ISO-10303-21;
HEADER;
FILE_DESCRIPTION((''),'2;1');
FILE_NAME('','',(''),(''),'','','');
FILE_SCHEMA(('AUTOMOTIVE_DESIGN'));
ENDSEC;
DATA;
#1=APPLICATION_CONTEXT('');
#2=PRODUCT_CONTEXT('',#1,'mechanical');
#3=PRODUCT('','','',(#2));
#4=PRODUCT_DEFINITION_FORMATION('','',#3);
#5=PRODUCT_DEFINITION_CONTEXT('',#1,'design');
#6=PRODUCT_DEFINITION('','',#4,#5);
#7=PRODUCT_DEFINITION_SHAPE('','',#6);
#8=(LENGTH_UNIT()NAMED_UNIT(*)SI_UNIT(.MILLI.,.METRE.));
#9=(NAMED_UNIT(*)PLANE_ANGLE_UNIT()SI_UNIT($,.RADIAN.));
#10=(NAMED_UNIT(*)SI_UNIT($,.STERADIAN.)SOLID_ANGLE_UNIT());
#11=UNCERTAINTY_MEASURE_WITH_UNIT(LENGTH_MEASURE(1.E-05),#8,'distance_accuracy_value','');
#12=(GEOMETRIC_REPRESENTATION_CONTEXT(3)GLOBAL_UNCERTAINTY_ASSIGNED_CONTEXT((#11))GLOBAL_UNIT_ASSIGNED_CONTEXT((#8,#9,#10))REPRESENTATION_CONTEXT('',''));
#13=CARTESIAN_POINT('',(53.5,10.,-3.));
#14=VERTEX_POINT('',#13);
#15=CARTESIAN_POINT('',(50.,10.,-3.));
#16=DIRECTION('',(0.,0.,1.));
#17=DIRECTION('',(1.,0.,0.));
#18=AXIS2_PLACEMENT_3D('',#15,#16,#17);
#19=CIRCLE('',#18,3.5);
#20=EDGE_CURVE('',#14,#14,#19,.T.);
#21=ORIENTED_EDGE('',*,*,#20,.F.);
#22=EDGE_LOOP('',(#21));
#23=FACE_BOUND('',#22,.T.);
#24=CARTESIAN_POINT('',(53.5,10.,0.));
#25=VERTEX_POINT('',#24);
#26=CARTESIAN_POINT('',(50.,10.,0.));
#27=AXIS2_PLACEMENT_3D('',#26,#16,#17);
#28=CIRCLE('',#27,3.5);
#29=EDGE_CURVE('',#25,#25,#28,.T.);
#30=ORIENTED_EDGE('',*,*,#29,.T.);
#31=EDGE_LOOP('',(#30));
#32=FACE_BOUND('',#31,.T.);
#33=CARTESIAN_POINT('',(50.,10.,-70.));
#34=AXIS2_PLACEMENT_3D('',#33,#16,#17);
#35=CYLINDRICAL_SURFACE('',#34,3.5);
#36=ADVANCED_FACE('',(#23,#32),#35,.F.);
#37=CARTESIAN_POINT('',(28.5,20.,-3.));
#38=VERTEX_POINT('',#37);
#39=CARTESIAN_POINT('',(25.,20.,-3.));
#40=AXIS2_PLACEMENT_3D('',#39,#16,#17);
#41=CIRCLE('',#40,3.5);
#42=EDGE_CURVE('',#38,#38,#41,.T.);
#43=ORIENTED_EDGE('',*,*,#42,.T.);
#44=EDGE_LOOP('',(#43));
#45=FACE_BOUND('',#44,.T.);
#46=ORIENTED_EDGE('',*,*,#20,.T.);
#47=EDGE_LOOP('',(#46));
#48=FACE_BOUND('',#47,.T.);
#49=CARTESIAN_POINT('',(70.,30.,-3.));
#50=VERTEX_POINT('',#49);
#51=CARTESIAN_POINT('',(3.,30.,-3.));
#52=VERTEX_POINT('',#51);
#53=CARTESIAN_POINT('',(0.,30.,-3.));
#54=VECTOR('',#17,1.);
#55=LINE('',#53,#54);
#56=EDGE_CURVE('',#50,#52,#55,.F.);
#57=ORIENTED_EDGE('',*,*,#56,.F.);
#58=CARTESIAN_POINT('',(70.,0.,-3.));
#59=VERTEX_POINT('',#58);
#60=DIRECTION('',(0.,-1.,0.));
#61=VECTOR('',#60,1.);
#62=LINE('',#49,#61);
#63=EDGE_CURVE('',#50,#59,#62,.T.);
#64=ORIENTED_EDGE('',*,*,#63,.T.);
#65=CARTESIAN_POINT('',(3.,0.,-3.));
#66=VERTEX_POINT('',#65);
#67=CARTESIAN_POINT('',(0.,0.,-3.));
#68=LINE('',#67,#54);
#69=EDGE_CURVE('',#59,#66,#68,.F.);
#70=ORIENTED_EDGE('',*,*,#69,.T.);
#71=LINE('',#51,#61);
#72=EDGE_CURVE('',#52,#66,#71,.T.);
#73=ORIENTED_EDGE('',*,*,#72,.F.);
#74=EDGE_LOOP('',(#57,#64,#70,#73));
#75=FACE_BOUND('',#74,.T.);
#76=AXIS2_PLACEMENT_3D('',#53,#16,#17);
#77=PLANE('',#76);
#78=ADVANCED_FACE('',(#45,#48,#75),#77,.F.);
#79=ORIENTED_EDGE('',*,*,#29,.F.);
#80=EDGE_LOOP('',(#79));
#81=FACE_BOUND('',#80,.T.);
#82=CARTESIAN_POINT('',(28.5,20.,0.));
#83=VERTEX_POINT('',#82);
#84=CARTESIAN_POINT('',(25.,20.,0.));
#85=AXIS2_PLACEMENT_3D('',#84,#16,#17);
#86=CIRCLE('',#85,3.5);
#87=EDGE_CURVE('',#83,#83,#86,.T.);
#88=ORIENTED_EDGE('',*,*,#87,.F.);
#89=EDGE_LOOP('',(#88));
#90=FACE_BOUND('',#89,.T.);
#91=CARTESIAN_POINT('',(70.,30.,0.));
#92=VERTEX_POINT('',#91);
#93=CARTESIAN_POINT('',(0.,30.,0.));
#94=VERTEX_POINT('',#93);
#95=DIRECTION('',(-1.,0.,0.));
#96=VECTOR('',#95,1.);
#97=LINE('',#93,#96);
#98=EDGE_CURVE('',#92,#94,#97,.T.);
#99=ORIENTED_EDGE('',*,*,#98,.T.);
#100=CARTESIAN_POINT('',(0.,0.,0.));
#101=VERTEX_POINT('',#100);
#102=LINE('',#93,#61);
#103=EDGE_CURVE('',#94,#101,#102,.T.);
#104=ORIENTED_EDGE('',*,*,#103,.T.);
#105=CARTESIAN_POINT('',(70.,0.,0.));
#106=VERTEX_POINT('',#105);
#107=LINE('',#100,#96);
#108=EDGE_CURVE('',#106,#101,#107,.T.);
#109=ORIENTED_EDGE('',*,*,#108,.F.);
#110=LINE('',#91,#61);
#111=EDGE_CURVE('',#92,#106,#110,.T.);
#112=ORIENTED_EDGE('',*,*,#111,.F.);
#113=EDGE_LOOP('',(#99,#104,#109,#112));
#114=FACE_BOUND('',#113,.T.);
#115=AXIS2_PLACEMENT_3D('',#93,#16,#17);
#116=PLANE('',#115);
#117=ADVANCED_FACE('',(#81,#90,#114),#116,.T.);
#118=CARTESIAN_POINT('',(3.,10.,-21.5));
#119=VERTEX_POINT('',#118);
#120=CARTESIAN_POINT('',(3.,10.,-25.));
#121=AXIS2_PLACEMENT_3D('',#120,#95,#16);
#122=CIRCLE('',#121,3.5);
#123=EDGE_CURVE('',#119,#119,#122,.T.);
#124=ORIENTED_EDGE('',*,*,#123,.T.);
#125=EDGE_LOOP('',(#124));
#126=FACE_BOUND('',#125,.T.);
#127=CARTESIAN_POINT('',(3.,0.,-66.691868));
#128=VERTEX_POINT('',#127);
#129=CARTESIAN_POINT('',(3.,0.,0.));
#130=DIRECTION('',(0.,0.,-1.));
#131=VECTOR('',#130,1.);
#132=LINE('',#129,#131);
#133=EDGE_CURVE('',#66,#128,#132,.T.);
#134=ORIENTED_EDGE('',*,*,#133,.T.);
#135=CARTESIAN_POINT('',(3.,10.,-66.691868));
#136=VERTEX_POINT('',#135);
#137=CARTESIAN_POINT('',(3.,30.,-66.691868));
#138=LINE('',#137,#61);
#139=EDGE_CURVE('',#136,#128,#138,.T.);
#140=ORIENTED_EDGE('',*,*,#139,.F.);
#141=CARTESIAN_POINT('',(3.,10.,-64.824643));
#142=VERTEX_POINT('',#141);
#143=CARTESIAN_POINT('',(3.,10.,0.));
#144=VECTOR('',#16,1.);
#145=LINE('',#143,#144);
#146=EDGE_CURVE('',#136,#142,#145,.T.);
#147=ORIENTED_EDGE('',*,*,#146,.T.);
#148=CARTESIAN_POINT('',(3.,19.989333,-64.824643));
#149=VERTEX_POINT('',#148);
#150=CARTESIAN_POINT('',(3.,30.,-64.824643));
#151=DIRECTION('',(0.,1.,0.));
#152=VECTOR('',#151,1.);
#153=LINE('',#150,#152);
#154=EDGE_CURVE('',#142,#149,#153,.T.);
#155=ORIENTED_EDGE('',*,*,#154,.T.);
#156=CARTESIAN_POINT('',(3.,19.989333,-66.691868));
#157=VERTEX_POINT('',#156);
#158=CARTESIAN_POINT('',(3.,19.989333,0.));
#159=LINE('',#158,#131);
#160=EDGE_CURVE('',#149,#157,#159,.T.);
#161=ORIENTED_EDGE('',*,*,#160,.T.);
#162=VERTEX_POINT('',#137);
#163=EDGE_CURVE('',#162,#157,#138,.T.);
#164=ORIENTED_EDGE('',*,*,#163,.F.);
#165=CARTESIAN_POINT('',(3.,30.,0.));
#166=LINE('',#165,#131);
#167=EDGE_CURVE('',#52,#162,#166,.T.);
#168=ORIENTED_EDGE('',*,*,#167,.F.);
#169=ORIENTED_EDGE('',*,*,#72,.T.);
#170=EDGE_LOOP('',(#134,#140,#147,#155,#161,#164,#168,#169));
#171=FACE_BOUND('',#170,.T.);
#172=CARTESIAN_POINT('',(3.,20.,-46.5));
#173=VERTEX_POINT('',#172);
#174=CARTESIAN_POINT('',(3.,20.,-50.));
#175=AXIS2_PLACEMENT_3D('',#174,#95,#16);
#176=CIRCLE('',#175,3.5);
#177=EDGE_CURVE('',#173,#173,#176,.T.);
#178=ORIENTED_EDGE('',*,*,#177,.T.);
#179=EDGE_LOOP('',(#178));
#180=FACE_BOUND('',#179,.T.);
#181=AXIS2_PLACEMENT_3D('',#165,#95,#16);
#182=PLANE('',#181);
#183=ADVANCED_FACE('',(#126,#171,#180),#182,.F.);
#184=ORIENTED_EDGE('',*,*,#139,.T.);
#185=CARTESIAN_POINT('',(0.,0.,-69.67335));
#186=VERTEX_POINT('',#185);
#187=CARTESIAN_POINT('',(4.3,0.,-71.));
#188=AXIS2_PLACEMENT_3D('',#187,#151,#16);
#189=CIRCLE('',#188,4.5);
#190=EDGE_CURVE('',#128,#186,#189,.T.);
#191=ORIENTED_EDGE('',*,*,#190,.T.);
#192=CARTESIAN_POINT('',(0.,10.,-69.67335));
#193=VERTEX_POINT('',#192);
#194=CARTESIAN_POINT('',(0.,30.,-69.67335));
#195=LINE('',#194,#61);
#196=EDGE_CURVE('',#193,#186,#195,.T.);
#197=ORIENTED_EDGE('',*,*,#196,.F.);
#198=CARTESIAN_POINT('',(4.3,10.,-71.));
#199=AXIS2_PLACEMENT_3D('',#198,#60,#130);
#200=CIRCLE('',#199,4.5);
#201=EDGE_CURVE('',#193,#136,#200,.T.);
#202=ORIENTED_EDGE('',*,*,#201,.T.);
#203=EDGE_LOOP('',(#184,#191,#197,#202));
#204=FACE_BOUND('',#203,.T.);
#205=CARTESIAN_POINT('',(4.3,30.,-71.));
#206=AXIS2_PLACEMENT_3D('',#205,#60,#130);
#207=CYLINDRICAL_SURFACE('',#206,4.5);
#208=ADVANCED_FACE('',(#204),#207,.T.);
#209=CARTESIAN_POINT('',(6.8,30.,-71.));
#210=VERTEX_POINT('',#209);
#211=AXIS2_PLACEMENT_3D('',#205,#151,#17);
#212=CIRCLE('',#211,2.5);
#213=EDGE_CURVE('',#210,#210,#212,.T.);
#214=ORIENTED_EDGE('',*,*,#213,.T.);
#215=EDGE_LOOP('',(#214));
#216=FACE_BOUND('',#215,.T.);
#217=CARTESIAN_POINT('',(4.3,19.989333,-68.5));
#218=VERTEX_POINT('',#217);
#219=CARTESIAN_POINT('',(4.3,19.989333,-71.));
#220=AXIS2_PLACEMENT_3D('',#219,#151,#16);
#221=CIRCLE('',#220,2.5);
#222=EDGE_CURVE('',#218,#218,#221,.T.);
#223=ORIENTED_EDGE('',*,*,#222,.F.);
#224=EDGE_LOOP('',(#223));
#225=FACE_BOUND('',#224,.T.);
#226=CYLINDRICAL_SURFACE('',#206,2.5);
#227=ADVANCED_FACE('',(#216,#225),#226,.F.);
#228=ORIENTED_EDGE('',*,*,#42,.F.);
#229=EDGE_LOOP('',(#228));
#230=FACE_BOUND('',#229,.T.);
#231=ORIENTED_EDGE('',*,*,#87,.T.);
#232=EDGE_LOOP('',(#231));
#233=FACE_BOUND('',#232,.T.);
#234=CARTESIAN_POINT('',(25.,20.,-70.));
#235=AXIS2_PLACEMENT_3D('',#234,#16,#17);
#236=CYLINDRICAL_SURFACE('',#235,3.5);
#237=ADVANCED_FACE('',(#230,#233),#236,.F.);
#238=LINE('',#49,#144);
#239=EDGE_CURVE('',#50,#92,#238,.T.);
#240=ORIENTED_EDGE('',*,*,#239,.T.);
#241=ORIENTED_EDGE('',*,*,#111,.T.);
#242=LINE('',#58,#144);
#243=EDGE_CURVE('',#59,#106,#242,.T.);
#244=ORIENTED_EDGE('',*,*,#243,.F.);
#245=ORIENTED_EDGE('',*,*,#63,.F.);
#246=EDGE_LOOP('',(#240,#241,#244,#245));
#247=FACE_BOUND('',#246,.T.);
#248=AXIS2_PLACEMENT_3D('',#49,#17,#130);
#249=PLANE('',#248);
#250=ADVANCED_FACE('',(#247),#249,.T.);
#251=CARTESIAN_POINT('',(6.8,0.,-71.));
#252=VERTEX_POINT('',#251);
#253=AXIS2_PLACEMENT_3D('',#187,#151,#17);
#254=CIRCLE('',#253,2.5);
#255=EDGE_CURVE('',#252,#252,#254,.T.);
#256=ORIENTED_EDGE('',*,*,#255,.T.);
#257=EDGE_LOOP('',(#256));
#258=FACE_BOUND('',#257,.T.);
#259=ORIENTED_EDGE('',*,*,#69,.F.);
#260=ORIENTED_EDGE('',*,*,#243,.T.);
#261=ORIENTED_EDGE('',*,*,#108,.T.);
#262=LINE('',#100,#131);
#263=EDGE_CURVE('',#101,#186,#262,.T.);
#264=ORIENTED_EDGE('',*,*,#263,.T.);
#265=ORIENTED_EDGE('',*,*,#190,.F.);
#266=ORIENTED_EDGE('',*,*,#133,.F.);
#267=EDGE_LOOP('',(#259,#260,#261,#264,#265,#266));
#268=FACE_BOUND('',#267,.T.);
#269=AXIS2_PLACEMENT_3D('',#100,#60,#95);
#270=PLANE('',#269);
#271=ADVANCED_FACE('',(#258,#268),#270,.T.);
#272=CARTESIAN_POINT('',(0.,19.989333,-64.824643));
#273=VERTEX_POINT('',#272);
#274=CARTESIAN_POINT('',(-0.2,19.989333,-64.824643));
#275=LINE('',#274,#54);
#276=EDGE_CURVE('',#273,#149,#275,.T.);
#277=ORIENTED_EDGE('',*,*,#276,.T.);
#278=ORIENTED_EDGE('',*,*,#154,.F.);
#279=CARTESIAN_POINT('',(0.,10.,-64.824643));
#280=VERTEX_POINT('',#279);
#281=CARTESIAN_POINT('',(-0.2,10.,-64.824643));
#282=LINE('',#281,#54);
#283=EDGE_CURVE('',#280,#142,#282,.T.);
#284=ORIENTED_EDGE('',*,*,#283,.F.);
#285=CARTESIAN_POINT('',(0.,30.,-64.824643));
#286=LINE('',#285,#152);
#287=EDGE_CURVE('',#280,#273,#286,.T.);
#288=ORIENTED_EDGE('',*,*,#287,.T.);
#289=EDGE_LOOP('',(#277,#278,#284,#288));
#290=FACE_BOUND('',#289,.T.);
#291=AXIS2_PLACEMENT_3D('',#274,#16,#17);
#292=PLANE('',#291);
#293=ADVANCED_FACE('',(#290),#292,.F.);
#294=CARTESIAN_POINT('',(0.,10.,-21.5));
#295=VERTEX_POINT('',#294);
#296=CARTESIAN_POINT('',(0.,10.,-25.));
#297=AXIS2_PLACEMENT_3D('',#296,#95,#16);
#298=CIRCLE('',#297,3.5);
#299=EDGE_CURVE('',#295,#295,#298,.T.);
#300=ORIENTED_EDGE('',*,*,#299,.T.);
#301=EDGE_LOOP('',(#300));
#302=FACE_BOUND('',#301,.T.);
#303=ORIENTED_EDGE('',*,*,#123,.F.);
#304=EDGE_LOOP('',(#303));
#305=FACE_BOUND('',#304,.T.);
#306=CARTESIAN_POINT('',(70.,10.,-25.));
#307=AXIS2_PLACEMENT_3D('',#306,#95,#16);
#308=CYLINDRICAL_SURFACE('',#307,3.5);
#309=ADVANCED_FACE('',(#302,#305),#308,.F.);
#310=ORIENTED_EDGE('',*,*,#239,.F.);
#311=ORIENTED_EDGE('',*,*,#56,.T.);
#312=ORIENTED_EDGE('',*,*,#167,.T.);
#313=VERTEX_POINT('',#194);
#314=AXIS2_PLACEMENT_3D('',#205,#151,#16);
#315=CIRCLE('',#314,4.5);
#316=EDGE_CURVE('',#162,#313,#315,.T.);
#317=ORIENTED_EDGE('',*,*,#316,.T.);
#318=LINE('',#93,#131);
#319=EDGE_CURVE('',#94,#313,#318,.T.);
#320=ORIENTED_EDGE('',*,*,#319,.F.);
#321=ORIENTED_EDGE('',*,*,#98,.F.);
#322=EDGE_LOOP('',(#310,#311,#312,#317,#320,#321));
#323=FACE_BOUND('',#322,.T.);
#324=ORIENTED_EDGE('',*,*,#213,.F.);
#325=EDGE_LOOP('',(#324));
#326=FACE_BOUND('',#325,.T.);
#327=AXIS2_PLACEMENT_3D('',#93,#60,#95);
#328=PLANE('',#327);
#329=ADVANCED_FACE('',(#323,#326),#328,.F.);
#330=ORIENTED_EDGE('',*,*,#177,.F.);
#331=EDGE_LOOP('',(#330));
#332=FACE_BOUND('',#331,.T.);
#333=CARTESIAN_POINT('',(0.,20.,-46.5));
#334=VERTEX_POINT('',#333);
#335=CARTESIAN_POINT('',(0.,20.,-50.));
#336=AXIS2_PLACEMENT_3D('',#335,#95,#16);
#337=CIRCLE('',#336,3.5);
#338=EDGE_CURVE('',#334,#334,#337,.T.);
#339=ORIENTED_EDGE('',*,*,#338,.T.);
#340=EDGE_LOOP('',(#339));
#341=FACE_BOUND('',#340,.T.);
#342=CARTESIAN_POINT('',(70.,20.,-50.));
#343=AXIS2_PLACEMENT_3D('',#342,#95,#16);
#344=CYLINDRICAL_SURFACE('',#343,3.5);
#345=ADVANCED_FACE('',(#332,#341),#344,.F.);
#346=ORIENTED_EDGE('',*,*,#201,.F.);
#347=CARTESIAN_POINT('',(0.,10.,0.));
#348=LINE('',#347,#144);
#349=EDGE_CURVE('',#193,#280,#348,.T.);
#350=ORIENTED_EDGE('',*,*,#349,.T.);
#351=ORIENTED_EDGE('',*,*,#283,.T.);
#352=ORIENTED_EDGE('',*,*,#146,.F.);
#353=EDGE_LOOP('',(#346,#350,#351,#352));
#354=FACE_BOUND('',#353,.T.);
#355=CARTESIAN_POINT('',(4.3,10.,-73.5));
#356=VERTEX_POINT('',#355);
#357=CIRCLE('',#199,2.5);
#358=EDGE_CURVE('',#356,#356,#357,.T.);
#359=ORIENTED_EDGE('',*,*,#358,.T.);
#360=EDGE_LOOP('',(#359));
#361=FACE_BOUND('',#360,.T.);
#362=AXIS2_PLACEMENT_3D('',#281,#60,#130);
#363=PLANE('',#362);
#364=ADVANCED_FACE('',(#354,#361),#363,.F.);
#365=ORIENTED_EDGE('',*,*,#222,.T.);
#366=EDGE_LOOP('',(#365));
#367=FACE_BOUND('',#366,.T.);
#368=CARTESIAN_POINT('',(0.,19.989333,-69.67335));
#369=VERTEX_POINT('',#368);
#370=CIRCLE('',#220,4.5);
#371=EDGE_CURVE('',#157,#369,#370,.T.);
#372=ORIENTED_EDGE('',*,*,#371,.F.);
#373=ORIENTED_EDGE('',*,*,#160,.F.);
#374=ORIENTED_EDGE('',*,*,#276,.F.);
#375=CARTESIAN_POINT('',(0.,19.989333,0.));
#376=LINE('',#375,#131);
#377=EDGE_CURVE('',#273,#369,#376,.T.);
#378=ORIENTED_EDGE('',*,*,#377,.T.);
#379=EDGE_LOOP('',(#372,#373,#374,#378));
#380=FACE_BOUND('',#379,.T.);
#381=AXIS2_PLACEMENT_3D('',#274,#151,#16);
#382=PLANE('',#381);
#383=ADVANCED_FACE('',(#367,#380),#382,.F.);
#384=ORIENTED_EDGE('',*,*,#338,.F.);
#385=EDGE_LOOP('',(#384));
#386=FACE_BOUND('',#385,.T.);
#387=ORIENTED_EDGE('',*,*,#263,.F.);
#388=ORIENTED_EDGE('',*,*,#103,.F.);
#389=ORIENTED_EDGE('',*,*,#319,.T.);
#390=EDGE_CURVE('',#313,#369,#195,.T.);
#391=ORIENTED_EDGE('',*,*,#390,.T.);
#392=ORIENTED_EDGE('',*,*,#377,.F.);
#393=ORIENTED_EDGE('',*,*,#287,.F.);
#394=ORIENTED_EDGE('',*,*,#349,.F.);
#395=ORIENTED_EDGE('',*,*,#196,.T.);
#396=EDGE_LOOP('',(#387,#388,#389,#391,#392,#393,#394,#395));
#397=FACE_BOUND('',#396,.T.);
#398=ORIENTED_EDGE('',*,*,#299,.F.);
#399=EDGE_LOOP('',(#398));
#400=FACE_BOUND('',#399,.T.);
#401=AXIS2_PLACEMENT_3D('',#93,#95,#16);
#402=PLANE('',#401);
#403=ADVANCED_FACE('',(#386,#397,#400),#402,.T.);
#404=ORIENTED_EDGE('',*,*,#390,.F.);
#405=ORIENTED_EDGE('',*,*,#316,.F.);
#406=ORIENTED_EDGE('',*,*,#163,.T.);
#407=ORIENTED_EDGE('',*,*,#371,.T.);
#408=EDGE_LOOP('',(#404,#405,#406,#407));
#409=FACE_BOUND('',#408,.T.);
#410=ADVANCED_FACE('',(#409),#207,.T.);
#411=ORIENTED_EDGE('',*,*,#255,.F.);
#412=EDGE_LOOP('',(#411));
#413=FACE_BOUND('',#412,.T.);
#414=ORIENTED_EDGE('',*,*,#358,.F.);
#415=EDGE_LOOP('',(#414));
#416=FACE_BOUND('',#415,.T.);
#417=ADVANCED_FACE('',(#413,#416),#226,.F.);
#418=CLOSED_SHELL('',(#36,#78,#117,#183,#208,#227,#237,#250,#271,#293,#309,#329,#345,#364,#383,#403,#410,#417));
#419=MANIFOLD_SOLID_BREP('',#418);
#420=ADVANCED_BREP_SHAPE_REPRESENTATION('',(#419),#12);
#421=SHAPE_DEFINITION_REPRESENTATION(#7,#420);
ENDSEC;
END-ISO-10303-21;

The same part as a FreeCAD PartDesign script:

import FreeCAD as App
import Part
import Sketcher
Q = App.Units.Quantity

doc = App.newDocument("Part")
body = doc.addObject("PartDesign::Body", "Body")

sketch1 = body.newObject("Sketcher::SketchObject", "Sketch")
sketch1.AttachmentSupport = (doc.getObject("XZ_Plane"), [""])
sketch1.MapMode = "FlatFace"
sketch1.addGeometry([
    Part.LineSegment(App.Vector(0, -70, 0), App.Vector(0, 0, 0)),
    Part.LineSegment(App.Vector(0, 0, 0), App.Vector(70, 0, 0)),
    Part.LineSegment(App.Vector(70, 0, 0), App.Vector(70, -3, 0)),
    Part.LineSegment(App.Vector(70, -3, 0), App.Vector(3, -3, 0)),
    Part.LineSegment(App.Vector(3, -3, 0), App.Vector(3, -70, 0)),
    Part.LineSegment(App.Vector(3, -70, 0), App.Vector(0, -70, 0)),
], False)
sketch1.addConstraint([
    Sketcher.Constraint("Coincident", 0, 2, 1, 1),
    Sketcher.Constraint("Coincident", 1, 2, 2, 1),
    Sketcher.Constraint("Coincident", 2, 2, 3, 1),
    Sketcher.Constraint("Coincident", 3, 2, 4, 1),
    Sketcher.Constraint("Coincident", 4, 2, 5, 1),
    Sketcher.Constraint("Coincident", 5, 2, 0, 1),
    Sketcher.Constraint("Vertical", 0),
    Sketcher.Constraint("Horizontal", 1),
    Sketcher.Constraint("Vertical", 2),
    Sketcher.Constraint("Horizontal", 3),
    Sketcher.Constraint("Vertical", 4),
    Sketcher.Constraint("Horizontal", 5),
    Sketcher.Constraint("Coincident", 0, 2, -1, 1),
    Sketcher.Constraint("Equal", 1, 0),
    Sketcher.Constraint("Equal", 5, 2),
    Sketcher.Constraint("DistanceX", 1, 1, 1, 2, Q("70 mm")),
    Sketcher.Constraint("DistanceX", 3, 2, 3, 1, Q("67 mm")),
])
pad1 = body.newObject("PartDesign::Pad", "Pad")
pad1.Profile = sketch1
pad1.Length = 30
pad1.Reversed = True

sketch2 = body.newObject("Sketcher::SketchObject", "Sketch001")
sketch2.AttachmentSupport = (doc.getObject("YZ_Plane"), [""])
sketch2.MapMode = "FlatFace"
sketch2.addGeometry([
    Part.Circle(App.Vector(20, -50, 0), App.Vector(0, 0, 1), 3.5),
    Part.Circle(App.Vector(10, -25, 0), App.Vector(0, 0, 1), 3.5),
], False)
sketch2.addConstraint([
    Sketcher.Constraint("Equal", 0, 1),
    Sketcher.Constraint("Diameter", 0, Q("7 mm")),
    Sketcher.Constraint("DistanceX", -1, 1, 0, 3, Q("20 mm")),
    Sketcher.Constraint("DistanceY", 0, 3, -1, 1, Q("50 mm")),
    Sketcher.Constraint("DistanceX", -1, 1, 1, 3, Q("10 mm")),
    Sketcher.Constraint("DistanceY", 1, 3, -1, 1, Q("25 mm")),
])
pocket1 = body.newObject("PartDesign::Pocket", "Pocket")
pocket1.Profile = sketch2
pocket1.Type = "ThroughAll"
pocket1.Reversed = True

sketch3 = body.newObject("Sketcher::SketchObject", "Sketch002")
sketch3.AttachmentSupport = (doc.getObject("XY_Plane"), [""])
sketch3.MapMode = "FlatFace"
sketch3.addGeometry([
    Part.Circle(App.Vector(25, 20, 0), App.Vector(0, 0, 1), 3.5),
    Part.Circle(App.Vector(50, 10, 0), App.Vector(0, 0, 1), 3.5),
], False)
sketch3.addConstraint([
    Sketcher.Constraint("Equal", 0, 1),
    Sketcher.Constraint("Diameter", 0, Q("7 mm")),
    Sketcher.Constraint("DistanceX", -1, 1, 0, 3, Q("25 mm")),
    Sketcher.Constraint("DistanceY", -1, 1, 0, 3, Q("20 mm")),
    Sketcher.Constraint("DistanceX", -1, 1, 1, 3, Q("50 mm")),
    Sketcher.Constraint("DistanceY", -1, 1, 1, 3, Q("10 mm")),
])
pocket2 = body.newObject("PartDesign::Pocket", "Pocket001")
pocket2.Profile = sketch3
pocket2.Type = "ThroughAll"

sketch4 = body.newObject("Sketcher::SketchObject", "Sketch003")
sketch4.AttachmentSupport = (doc.getObject("XZ_Plane"), [""])
sketch4.MapMode = "FlatFace"
sketch4.addGeometry([
    Part.Circle(App.Vector(4.3, -71, 0), App.Vector(0, 0, 1), 4.5),
    Part.Circle(App.Vector(4.3, -71, 0), App.Vector(0, 0, 1), 2.5),
], False)
sketch4.addConstraint([
    Sketcher.Constraint("Coincident", 1, 3, 0, 3),
    Sketcher.Constraint("Diameter", 0, Q("9 mm")),
    Sketcher.Constraint("Diameter", 1, Q("5 mm")),
    Sketcher.Constraint("DistanceY", 0, 3, -1, 1, Q("71 mm")),
    Sketcher.Constraint("DistanceX", -1, 1, 0, 3, Q("4.3 mm")),
])
pad2 = body.newObject("PartDesign::Pad", "Pad001")
pad2.Profile = sketch4
pad2.Length = 30
pad2.Reversed = True

sketch5 = body.newObject("Sketcher::SketchObject", "Sketch004")
sketch5.AttachmentSupport = (doc.getObject("XZ_Plane"), [""])
sketch5.MapMode = "FlatFace"
sketch5.addGeometry(Part.Circle(App.Vector(4.3, -71, 0), App.Vector(0, 0, 1), 2.5), False)
sketch5.addConstraint([
    Sketcher.Constraint("Diameter", 0, Q("5 mm")),
    Sketcher.Constraint("DistanceY", 0, 3, -1, 1, Q("71 mm")),
    Sketcher.Constraint("DistanceX", -1, 1, 0, 3, Q("4.3 mm")),
])
pocket3 = body.newObject("PartDesign::Pocket", "Pocket002")
pocket3.Profile = sketch5
pocket3.Type = "ThroughAll"

sketch6 = body.newObject("Sketcher::SketchObject", "Sketch005")
sketch6.AttachmentSupport = (doc.getObject("YZ_Plane"), [""])
sketch6.MapMode = "FlatFace"
sketch6.addGeometry([
    Part.LineSegment(App.Vector(20, -65, 0), App.Vector(10, -65, 0)),
    Part.LineSegment(App.Vector(10, -65, 0), App.Vector(10, -77, 0)),
    Part.LineSegment(App.Vector(10, -77, 0), App.Vector(20, -77, 0)),
    Part.LineSegment(App.Vector(20, -77, 0), App.Vector(20, -65, 0)),
], False)
sketch6.addConstraint([
    Sketcher.Constraint("Coincident", 0, 2, 1, 1),
    Sketcher.Constraint("Coincident", 1, 2, 2, 1),
    Sketcher.Constraint("Coincident", 2, 2, 3, 1),
    Sketcher.Constraint("Coincident", 3, 2, 0, 1),
    Sketcher.Constraint("Horizontal", 0),
    Sketcher.Constraint("Vertical", 1),
    Sketcher.Constraint("Horizontal", 2),
    Sketcher.Constraint("Vertical", 3),
    Sketcher.Constraint("DistanceX", -1, 1, 0, 2, Q("10 mm")),
    Sketcher.Constraint("DistanceX", 0, 2, 0, 1, Q("9.989333 mm")),
    Sketcher.Constraint("DistanceY", 1, 2, 1, 1, Q("11.977632 mm")),
    Sketcher.Constraint("DistanceY", 0, 2, -1, 1, Q("64.824643 mm")),
])
pocket4 = body.newObject("PartDesign::Pocket", "Pocket003")
pocket4.Profile = sketch6
pocket4.Type = "ThroughAll"
pocket4.Midplane = True

doc.recompute()
